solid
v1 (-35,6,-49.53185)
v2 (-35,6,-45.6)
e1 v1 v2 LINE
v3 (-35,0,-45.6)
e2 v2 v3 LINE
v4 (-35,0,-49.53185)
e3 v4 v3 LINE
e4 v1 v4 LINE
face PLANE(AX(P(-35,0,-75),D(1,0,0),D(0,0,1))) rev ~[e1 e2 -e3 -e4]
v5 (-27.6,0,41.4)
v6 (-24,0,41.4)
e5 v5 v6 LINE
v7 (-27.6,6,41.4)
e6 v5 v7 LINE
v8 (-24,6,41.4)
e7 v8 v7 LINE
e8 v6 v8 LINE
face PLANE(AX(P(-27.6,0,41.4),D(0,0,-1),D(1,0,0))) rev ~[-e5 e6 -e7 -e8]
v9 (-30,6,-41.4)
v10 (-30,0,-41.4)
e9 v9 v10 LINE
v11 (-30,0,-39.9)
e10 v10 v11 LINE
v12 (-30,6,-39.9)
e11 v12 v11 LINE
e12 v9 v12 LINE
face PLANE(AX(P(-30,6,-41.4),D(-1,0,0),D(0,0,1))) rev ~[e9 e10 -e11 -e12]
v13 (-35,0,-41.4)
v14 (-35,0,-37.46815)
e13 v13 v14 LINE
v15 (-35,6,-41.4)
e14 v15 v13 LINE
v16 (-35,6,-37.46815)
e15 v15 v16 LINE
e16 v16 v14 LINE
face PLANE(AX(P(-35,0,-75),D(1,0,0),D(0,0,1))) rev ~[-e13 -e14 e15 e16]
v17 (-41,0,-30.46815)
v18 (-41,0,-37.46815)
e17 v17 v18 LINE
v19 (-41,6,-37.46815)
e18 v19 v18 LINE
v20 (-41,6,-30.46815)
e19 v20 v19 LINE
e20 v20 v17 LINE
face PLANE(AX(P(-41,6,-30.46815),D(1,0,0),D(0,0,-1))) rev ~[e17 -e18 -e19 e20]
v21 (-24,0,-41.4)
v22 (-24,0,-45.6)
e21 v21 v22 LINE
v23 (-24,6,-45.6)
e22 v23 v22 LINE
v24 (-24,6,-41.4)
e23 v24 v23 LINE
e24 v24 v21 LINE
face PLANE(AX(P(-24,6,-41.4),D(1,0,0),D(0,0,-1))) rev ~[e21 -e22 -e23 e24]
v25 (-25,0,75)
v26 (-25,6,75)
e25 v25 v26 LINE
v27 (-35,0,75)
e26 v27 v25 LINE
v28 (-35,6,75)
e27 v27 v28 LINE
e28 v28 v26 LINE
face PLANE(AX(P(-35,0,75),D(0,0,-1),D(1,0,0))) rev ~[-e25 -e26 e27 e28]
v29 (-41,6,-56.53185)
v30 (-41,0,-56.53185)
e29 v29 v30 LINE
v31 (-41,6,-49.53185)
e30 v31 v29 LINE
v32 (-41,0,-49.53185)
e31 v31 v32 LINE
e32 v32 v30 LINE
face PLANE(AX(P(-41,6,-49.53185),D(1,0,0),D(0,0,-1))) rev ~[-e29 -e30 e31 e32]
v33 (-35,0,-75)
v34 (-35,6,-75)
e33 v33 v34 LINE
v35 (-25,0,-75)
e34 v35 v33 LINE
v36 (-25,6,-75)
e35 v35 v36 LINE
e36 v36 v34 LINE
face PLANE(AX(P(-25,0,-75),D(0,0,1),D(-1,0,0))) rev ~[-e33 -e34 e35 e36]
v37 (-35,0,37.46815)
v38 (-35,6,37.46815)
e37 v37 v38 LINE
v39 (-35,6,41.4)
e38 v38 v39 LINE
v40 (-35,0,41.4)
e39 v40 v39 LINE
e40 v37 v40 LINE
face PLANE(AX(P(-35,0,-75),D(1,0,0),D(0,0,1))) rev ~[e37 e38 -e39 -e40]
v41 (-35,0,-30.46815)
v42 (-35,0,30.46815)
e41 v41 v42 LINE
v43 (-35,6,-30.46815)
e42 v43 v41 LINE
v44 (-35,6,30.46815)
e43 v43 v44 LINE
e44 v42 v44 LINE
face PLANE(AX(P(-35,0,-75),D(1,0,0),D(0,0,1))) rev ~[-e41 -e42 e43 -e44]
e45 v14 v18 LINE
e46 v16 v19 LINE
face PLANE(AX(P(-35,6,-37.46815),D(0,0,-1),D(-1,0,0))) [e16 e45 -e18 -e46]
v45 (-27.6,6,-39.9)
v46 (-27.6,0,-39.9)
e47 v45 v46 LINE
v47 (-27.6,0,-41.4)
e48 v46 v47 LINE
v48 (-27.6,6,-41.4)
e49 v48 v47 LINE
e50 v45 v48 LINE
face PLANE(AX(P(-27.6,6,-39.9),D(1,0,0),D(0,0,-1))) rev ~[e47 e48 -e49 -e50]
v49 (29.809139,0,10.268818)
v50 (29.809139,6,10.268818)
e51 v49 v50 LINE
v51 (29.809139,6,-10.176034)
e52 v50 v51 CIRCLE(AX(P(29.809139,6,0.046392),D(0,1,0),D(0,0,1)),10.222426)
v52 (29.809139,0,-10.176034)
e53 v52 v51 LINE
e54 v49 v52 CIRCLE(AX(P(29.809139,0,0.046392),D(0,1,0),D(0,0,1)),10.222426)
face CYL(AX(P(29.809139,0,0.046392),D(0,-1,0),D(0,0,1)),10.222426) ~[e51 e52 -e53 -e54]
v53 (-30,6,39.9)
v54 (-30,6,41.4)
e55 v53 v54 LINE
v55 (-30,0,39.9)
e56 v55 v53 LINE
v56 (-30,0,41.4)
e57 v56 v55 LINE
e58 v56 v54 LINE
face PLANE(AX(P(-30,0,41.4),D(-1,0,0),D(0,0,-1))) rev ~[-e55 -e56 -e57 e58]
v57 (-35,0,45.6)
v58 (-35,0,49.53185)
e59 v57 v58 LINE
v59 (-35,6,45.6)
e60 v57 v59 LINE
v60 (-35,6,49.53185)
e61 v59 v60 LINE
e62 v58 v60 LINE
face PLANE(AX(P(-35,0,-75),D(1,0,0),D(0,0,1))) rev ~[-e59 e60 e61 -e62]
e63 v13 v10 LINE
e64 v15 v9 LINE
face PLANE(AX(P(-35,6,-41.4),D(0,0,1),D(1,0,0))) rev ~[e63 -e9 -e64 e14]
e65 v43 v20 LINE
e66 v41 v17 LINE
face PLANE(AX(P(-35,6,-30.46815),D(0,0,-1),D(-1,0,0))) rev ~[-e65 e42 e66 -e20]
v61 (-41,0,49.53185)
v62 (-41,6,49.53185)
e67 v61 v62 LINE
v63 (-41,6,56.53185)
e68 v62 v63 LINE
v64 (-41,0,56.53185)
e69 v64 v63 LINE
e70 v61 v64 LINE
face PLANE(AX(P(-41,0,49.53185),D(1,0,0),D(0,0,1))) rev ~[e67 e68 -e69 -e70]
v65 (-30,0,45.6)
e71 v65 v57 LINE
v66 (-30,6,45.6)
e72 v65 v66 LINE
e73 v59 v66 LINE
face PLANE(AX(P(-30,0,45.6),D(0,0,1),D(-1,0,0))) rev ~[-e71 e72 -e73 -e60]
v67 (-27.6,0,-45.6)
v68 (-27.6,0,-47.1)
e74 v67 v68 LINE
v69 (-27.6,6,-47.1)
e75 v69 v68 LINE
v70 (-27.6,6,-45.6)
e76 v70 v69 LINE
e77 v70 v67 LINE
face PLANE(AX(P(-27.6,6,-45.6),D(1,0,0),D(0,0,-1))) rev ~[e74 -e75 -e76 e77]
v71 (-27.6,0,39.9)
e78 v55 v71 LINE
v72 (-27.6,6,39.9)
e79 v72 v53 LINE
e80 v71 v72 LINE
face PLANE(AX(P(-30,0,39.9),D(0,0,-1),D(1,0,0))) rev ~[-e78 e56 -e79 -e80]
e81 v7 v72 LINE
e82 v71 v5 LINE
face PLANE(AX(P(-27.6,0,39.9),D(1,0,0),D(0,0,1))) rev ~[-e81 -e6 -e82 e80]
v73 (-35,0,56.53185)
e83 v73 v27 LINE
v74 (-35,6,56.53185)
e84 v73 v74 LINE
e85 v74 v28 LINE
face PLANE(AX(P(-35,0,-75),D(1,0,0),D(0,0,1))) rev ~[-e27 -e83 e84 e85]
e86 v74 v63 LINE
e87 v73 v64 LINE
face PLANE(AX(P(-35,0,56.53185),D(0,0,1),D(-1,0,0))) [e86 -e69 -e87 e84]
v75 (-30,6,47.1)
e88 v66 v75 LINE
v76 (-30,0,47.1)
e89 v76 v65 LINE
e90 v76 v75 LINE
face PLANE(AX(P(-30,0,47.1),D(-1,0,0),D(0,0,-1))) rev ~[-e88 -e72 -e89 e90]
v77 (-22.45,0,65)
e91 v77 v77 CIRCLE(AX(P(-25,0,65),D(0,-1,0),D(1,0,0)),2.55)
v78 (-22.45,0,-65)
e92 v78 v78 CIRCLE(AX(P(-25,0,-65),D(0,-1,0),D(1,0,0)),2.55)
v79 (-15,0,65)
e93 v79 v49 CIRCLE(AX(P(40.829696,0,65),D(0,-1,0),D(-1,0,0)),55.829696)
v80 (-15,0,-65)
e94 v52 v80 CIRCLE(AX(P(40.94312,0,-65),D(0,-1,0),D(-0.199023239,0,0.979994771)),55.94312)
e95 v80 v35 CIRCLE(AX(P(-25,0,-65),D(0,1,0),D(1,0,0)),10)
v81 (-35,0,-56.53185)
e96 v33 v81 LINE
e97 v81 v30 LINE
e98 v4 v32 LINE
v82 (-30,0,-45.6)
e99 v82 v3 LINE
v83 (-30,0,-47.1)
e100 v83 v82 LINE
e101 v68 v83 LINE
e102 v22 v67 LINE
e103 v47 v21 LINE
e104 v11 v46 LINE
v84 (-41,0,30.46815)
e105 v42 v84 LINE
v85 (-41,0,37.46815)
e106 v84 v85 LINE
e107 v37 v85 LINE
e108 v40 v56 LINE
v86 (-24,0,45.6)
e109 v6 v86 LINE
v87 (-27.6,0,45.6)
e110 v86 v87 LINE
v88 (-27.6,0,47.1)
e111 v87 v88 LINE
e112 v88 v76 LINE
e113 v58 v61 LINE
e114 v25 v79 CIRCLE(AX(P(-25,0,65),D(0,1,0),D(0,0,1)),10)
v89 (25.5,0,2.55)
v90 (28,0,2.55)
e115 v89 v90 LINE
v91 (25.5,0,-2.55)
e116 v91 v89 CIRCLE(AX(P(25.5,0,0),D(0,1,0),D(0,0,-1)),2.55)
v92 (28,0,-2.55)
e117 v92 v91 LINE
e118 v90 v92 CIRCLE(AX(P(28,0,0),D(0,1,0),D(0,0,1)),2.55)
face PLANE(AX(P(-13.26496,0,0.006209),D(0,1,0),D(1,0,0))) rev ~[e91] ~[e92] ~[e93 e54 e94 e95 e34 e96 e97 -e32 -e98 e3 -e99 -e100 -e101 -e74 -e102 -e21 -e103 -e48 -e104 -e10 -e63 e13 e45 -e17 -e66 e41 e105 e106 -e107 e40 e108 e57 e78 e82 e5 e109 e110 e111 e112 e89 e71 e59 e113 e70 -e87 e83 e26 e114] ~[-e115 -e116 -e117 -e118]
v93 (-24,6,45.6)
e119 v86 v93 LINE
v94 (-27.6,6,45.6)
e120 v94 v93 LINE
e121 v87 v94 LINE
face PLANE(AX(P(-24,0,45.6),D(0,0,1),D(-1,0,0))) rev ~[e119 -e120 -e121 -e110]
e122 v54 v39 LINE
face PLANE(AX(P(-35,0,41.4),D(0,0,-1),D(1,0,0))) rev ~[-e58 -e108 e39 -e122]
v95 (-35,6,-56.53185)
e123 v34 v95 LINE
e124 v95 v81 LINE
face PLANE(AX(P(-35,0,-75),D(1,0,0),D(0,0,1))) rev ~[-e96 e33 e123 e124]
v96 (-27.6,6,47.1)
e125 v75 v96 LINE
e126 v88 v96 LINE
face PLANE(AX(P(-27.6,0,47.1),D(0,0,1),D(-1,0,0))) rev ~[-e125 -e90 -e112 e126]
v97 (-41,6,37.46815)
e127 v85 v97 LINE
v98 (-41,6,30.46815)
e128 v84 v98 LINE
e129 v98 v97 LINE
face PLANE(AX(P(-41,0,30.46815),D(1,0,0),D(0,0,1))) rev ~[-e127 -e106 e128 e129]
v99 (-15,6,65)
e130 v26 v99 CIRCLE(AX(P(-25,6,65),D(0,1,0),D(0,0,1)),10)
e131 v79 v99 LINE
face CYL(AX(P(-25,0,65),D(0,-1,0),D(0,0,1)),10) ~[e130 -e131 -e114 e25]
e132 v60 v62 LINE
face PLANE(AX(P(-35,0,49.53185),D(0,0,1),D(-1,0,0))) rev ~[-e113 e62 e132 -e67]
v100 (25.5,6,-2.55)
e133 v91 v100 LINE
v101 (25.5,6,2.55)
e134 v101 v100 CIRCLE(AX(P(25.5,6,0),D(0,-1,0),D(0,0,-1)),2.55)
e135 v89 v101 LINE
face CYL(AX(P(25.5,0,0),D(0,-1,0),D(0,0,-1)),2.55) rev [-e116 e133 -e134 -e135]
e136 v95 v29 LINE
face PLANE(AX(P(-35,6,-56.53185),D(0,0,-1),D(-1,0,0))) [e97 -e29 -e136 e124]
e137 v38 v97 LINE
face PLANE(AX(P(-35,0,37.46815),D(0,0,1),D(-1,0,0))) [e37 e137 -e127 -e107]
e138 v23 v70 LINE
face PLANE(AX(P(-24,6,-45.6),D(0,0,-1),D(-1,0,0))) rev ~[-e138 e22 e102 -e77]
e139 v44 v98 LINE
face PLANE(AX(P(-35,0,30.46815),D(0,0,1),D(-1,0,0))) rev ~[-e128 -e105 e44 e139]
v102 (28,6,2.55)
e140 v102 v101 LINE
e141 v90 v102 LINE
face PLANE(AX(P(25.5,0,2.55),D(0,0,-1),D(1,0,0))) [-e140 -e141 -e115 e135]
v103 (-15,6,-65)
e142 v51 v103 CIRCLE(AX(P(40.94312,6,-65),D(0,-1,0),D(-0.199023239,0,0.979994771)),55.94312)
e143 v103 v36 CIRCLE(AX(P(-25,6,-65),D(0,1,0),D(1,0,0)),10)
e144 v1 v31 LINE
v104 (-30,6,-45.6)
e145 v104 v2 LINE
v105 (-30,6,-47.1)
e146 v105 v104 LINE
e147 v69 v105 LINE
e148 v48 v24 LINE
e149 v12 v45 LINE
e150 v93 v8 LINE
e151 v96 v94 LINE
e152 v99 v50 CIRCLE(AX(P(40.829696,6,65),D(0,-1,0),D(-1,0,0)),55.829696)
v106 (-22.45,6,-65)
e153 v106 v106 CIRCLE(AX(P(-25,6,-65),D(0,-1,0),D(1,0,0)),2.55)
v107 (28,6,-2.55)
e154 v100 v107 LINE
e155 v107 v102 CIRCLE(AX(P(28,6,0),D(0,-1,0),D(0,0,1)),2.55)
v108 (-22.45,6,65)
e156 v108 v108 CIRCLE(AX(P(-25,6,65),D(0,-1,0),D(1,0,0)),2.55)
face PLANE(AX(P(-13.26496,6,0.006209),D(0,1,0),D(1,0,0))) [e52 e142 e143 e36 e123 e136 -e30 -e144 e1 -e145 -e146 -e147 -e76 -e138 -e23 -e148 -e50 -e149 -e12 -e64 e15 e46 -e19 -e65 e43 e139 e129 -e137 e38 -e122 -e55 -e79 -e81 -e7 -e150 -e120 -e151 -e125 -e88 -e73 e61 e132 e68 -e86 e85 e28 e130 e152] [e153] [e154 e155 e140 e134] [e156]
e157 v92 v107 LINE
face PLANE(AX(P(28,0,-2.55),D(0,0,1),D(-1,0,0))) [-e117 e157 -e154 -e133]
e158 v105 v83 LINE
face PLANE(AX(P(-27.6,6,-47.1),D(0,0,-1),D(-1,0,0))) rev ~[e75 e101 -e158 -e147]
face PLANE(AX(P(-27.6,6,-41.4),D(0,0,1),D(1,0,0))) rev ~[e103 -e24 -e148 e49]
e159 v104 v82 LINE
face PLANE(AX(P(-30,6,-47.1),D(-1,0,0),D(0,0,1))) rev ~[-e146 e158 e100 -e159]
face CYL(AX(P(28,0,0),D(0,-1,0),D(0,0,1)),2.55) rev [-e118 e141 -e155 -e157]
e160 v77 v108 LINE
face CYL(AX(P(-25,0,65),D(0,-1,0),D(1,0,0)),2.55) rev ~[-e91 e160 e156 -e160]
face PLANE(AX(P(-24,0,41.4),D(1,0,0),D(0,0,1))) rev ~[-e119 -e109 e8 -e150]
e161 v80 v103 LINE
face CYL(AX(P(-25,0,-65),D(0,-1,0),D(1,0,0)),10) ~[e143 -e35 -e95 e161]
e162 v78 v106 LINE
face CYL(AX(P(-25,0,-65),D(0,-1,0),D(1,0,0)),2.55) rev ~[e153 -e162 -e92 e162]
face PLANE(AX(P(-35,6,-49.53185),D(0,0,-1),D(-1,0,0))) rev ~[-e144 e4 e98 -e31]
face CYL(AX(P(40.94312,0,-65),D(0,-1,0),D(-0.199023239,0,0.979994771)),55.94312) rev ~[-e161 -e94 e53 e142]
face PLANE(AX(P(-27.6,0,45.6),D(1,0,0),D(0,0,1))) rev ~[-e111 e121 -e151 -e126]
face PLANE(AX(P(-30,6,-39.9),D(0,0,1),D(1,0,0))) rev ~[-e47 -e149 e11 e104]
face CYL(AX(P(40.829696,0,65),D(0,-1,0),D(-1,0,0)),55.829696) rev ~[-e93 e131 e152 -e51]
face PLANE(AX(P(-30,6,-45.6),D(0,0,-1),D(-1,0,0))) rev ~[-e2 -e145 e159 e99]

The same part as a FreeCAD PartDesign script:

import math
import FreeCAD as App
import Part
import Sketcher
from FreeCAD import Vector

doc = App.newDocument("Part")
body = doc.addObject("PartDesign::Body", "Body")

# Sketch on XZ plane
sketch1 = body.newObject("Sketcher::SketchObject", "Sketch")
sketch1.AttachmentSupport = (doc.getObject("XZ_Plane"), [""])
sketch1.MapMode = "FlatFace"
sketch1.addGeometry(Part.LineSegment(Vector(-35, 75, 0), Vector(-25, 75, 0)), False)
sketch1.addGeometry(Part.ArcOfCircle(Part.Circle(Vector(-25, 65, 0), Vector(0, 0, 1), 10), math.radians(0), math.radians(90)), False)
sketch1.addGeometry(Part.ArcOfCircle(Part.Circle(Vector(40.829696, 65, 0), Vector(0, 0, 1), 55.829696), math.radians(-180), math.radians(-101.384723)), False)
sketch1.addGeometry(Part.ArcOfCircle(Part.Circle(Vector(29.809139, 0.046392, 0), Vector(0, 0, 1), 10.222426), math.radians(-90), math.radians(90)), False)
sketch1.addGeometry(Part.ArcOfCircle(Part.Circle(Vector(40.94312, -65, 0), Vector(0, 0, 1), 55.94312), math.radians(101.479847), math.radians(180)), False)
sketch1.addGeometry(Part.ArcOfCircle(Part.Circle(Vector(-25, -65, 0), Vector(0, 0, 1), 10), math.radians(-90), math.radians(0)), False)
sketch1.addGeometry(Part.LineSegment(Vector(-25, -75, 0), Vector(-35, -75, 0)), False)
sketch1.addGeometry(Part.LineSegment(Vector(-35, -75, 0), Vector(-35, 75, 0)), False)
sketch1.addConstraint(Sketcher.Constraint("Tangent", 0, 2, 1, 2))
sketch1.addConstraint(Sketcher.Constraint("Tangent", 1, 1, 2, 1))
sketch1.addConstraint(Sketcher.Constraint("Coincident", 2, 2, 3, 2))
sketch1.addConstraint(Sketcher.Constraint("Coincident", 3, 1, 4, 1))
sketch1.addConstraint(Sketcher.Constraint("Tangent", 4, 2, 5, 2))
sketch1.addConstraint(Sketcher.Constraint("Tangent", 5, 1, 6, 1))
sketch1.addConstraint(Sketcher.Constraint("Coincident", 6, 2, 7, 1))
sketch1.addConstraint(Sketcher.Constraint("Coincident", 7, 2, 0, 1))
sketch1.addConstraint(Sketcher.Constraint("Horizontal", 0))
sketch1.addConstraint(Sketcher.Constraint("Horizontal", 6))
sketch1.addConstraint(Sketcher.Constraint("Vertical", 7))
sketch1.addConstraint(Sketcher.Constraint("Equal", 1, 5))
sketch1.addConstraint(Sketcher.Constraint("Symmetric", 1, 3, 5, 3, -1))
sketch1.addConstraint(Sketcher.Constraint("Horizontal", 1, 3, 2, 3))
sketch1.addConstraint(Sketcher.Constraint("Horizontal", 4, 3, 5, 3))
sketch1.addConstraint(Sketcher.Constraint("Vertical", 3, 3, 2, 2))
sketch1.addConstraint(Sketcher.Constraint("Vertical", 2, 2, 3, 1))
sketch1.addConstraint(Sketcher.Constraint("Radius", 1, 10.0))
sketch1.addConstraint(Sketcher.Constraint("DistanceX", 0, 1, 0, 2, 10.0))
sketch1.addConstraint(Sketcher.Constraint("DistanceY", 7, 1, 7, 2, 150.0))
sketch1.addConstraint(Sketcher.Constraint("DistanceX", 1, 3, -1, 1, 25.0))
sketch1.addConstraint(Sketcher.Constraint("Radius", 4, 55.94312))
sketch1.addConstraint(Sketcher.Constraint("Radius", 2, 55.829696))
sketch1.addConstraint(Sketcher.Constraint("Radius", 3, 10.222426))
pad1 = body.newObject("PartDesign::Pad", "Pad")
pad1.Profile = sketch1
pad1.Length = 6
pad1.Reversed = True

# Sketch on XZ plane
sketch2 = body.newObject("Sketcher::SketchObject", "Sketch001")
sketch2.AttachmentSupport = (doc.getObject("XZ_Plane"), [""])
sketch2.MapMode = "FlatFace"
sketch2.addGeometry(Part.Circle(Vector(-25, -65, 0), Vector(0, 0, 1), 2.55), False)
sketch2.addGeometry(Part.Circle(Vector(-25, 65, 0), Vector(0, 0, 1), 2.55), False)
sketch2.addGeometry(Part.LineSegment(Vector(25.5, -2.55, 0), Vector(28, -2.55, 0)), False)
sketch2.addGeometry(Part.ArcOfCircle(Part.Circle(Vector(28, 0, 0), Vector(0, 0, 1), 2.55), math.radians(-90), math.radians(90)), False)
sketch2.addGeometry(Part.LineSegment(Vector(28, 2.55, 0), Vector(25.5, 2.55, 0)), False)
sketch2.addGeometry(Part.ArcOfCircle(Part.Circle(Vector(25.5, 0, 0), Vector(0, 0, 1), 2.55), math.radians(90), math.radians(270)), False)
sketch2.addConstraint(Sketcher.Constraint("Tangent", 2, 2, 3, 1))
sketch2.addConstraint(Sketcher.Constraint("Tangent", 3, 2, 4, 1))
sketch2.addConstraint(Sketcher.Constraint("Tangent", 4, 2, 5, 1))
sketch2.addConstraint(Sketcher.Constraint("Tangent", 5, 2, 2, 1))
sketch2.addConstraint(Sketcher.Constraint("Horizontal", 2))
sketch2.addConstraint(Sketcher.Constraint("Horizontal", 4))
sketch2.addConstraint(Sketcher.Constraint("Equal", 0, 1))
sketch2.addConstraint(Sketcher.Constraint("Equal", 1, 3))
sketch2.addConstraint(Sketcher.Constraint("Symmetric", 0, 3, 1, 3, -1))
sketch2.addConstraint(Sketcher.Constraint("PointOnObject", 3, 3, -1))
sketch2.addConstraint(Sketcher.Constraint("Diameter", 0, 5.1))
sketch2.addConstraint(Sketcher.Constraint("DistanceX", 2, 1, 2, 2, 2.5))
sketch2.addConstraint(Sketcher.Constraint("DistanceX", 0, 3, -1, 1, 25.0))
sketch2.addConstraint(Sketcher.Constraint("DistanceY", 0, 3, -1, 1, 65.0))
sketch2.addConstraint(Sketcher.Constraint("DistanceX", -1, 1, 3, 3, 28.0))
pocket1 = body.newObject("PartDesign::Pocket", "Pocket")
pocket1.Profile = sketch2
pocket1.Type = "ThroughAll"

# Sketch on XZ plane
sketch3 = body.newObject("Sketcher::SketchObject", "Sketch002")
sketch3.AttachmentSupport = (doc.getObject("XZ_Plane"), [""])
sketch3.MapMode = "FlatFace"
sketch3.AttachmentOffset = App.Placement(Vector(0, 0, -6), App.Rotation())
sketch3.addGeometry(Part.LineSegment(Vector(-41, -30.46815, 0), Vector(-35, -30.46815, 0)), False)
sketch3.addGeometry(Part.LineSegment(Vector(-35, -30.46815, 0), Vector(-35, -37.46815, 0)), False)
sketch3.addGeometry(Part.LineSegment(Vector(-35, -37.46815, 0), Vector(-41, -37.46815, 0)), False)
sketch3.addGeometry(Part.LineSegment(Vector(-41, -37.46815, 0), Vector(-41, -30.46815, 0)), False)
sketch3.addGeometry(Part.LineSegment(Vector(-41, -49.53185, 0), Vector(-35, -49.53185, 0)), False)
sketch3.addGeometry(Part.LineSegment(Vector(-35, -49.53185, 0), Vector(-35, -56.53185, 0)), False)
sketch3.addGeometry(Part.LineSegment(Vector(-35, -56.53185, 0), Vector(-41, -56.53185, 0)), False)
sketch3.addGeometry(Part.LineSegment(Vector(-41, -56.53185, 0), Vector(-41, -49.53185, 0)), False)
sketch3.addConstraint(Sketcher.Constraint("Coincident", 0, 2, 1, 1))
sketch3.addConstraint(Sketcher.Constraint("Coincident", 1, 2, 2, 1))
sketch3.addConstraint(Sketcher.Constraint("Coincident", 2, 2, 3, 1))
sketch3.addConstraint(Sketcher.Constraint("Coincident", 3, 2, 0, 1))
sketch3.addConstraint(Sketcher.Constraint("Coincident", 4, 2, 5, 1))
sketch3.addConstraint(Sketcher.Constraint("Coincident", 5, 2, 6, 1))
sketch3.addConstraint(Sketcher.Constraint("Coincident", 6, 2, 7, 1))
sketch3.addConstraint(Sketcher.Constraint("Coincident", 7, 2, 4, 1))
sketch3.addConstraint(Sketcher.Constraint("Horizontal", 0))
sketch3.addConstraint(Sketcher.Constraint("Vertical", 1))
sketch3.addConstraint(Sketcher.Constraint("Horizontal", 2))
sketch3.addConstraint(Sketcher.Constraint("Vertical", 3))
sketch3.addConstraint(Sketcher.Constraint("Horizontal", 4))
sketch3.addConstraint(Sketcher.Constraint("Vertical", 5))
sketch3.addConstraint(Sketcher.Constraint("Horizontal", 6))
sketch3.addConstraint(Sketcher.Constraint("Vertical", 7))
sketch3.addConstraint(Sketcher.Constraint("Vertical", 1, 2, 4, 2))
sketch3.addConstraint(Sketcher.Constraint("Vertical", 3, 2, 6, 2))
sketch3.addConstraint(Sketcher.Constraint("Equal", 3, 5))
sketch3.addConstraint(Sketcher.Constraint("DistanceX", 0, 1, 0, 2, 6.0))
sketch3.addConstraint(Sketcher.Constraint("DistanceY", 1, 2, 1, 1, 7.0))
sketch3.addConstraint(Sketcher.Constraint("DistanceX", 0, 2, -1, 1, 35.0))
sketch3.addConstraint(Sketcher.Constraint("DistanceY", 4, 2, 1, 2, 12.0637))
sketch3.addConstraint(Sketcher.Constraint("DistanceY", 0, 2, -1, 1, 30.46815))
pad2 = body.newObject("PartDesign::Pad", "Pad001")
pad2.Profile = sketch3
pad2.Length = 6

# Sketch on XZ plane
sketch4 = body.newObject("Sketcher::SketchObject", "Sketch003")
sketch4.AttachmentSupport = (doc.getObject("XZ_Plane"), [""])
sketch4.MapMode = "FlatFace"
sketch4.AttachmentOffset = App.Placement(Vector(0, 0, -6), App.Rotation())
sketch4.addGeometry(Part.LineSegment(Vector(-30, -41.4, 0), Vector(-30, -39.9, 0)), False)
sketch4.addGeometry(Part.LineSegment(Vector(-30, -39.9, 0), Vector(-27.6, -39.9, 0)), False)
sketch4.addGeometry(Part.LineSegment(Vector(-27.6, -39.9, 0), Vector(-27.6, -41.4, 0)), False)
sketch4.addGeometry(Part.LineSegment(Vector(-27.6, -41.4, 0), Vector(-24, -41.4, 0)), False)
sketch4.addGeometry(Part.LineSegment(Vector(-24, -41.4, 0), Vector(-24, -45.6, 0)), False)
sketch4.addGeometry(Part.LineSegment(Vector(-24, -45.6, 0), Vector(-27.6, -45.6, 0)), False)
sketch4.addGeometry(Part.LineSegment(Vector(-27.6, -45.6, 0), Vector(-27.6, -47.1, 0)), False)
sketch4.addGeometry(Part.LineSegment(Vector(-27.6, -47.1, 0), Vector(-30, -47.1, 0)), False)
sketch4.addGeometry(Part.LineSegment(Vector(-30, -47.1, 0), Vector(-30, -45.6, 0)), False)
sketch4.addGeometry(Part.LineSegment(Vector(-30, -45.6, 0), Vector(-35, -45.6, 0)), False)
sketch4.addGeometry(Part.LineSegment(Vector(-35, -45.6, 0), Vector(-35, -41.4, 0)), False)
sketch4.addGeometry(Part.LineSegment(Vector(-35, -41.4, 0), Vector(-30, -41.4, 0)), False)
sketch4.addConstraint(Sketcher.Constraint("Coincident", 0, 2, 1, 1))
sketch4.addConstraint(Sketcher.Constraint("Coincident", 1, 2, 2, 1))
sketch4.addConstraint(Sketcher.Constraint("Coincident", 2, 2, 3, 1))
sketch4.addConstraint(Sketcher.Constraint("Coincident", 3, 2, 4, 1))
sketch4.addConstraint(Sketcher.Constraint("Coincident", 4, 2, 5, 1))
sketch4.addConstraint(Sketcher.Constraint("Coincident", 5, 2, 6, 1))
sketch4.addConstraint(Sketcher.Constraint("Coincident", 6, 2, 7, 1))
sketch4.addConstraint(Sketcher.Constraint("Coincident", 7, 2, 8, 1))
sketch4.addConstraint(Sketcher.Constraint("Coincident", 8, 2, 9, 1))
sketch4.addConstraint(Sketcher.Constraint("Coincident", 9, 2, 10, 1))
sketch4.addConstraint(Sketcher.Constraint("Coincident", 10, 2, 11, 1))
sketch4.addConstraint(Sketcher.Constraint("Coincident", 11, 2, 0, 1))
sketch4.addConstraint(Sketcher.Constraint("Vertical", 0))
sketch4.addConstraint(Sketcher.Constraint("Horizontal", 1))
sketch4.addConstraint(Sketcher.Constraint("Vertical", 2))
sketch4.addConstraint(Sketcher.Constraint("Horizontal", 3))
sketch4.addConstraint(Sketcher.Constraint("Vertical", 4))
sketch4.addConstraint(Sketcher.Constraint("Horizontal", 5))
sketch4.addConstraint(Sketcher.Constraint("Vertical", 6))
sketch4.addConstraint(Sketcher.Constraint("Horizontal", 7))
sketch4.addConstraint(Sketcher.Constraint("Vertical", 8))
sketch4.addConstraint(Sketcher.Constraint("Horizontal", 9))
sketch4.addConstraint(Sketcher.Constraint("Vertical", 10))
sketch4.addConstraint(Sketcher.Constraint("Horizontal", 11))
sketch4.addConstraint(Sketcher.Constraint("Horizontal", 5, 2, 8, 2))
sketch4.addConstraint(Sketcher.Constraint("Horizontal", 3, 2, 10, 2))
sketch4.addConstraint(Sketcher.Constraint("Vertical", 2, 2, 5, 2))
sketch4.addConstraint(Sketcher.Constraint("Vertical", 0, 2, 7, 2))
sketch4.addConstraint(Sketcher.Constraint("Equal", 2, 6))
sketch4.addConstraint(Sketcher.Constraint("DistanceX", 9, 2, 9, 1, 5.0))
sketch4.addConstraint(Sketcher.Constraint("DistanceX", 1, 1, 1, 2, 2.4))
sketch4.addConstraint(Sketcher.Constraint("DistanceX", 3, 1, 3, 2, 3.6))
sketch4.addConstraint(Sketcher.Constraint("DistanceY", 0, 1, 0, 2, 1.5))
sketch4.addConstraint(Sketcher.Constraint("DistanceY", 4, 2, 4, 1, 4.2))
sketch4.addConstraint(Sketcher.Constraint("DistanceX", 0, 2, -1, 1, 30.0))
sketch4.addConstraint(Sketcher.Constraint("DistanceY", 0, 2, -1, 1, 39.9))
pocket2 = body.newObject("PartDesign::Pocket", "Pocket001")
pocket2.Profile = sketch4
pocket2.Type = "ThroughAll"
pocket2.Reversed = True

# Sketch on XZ plane
sketch5 = body.newObject("Sketcher::SketchObject", "Sketch004")
sketch5.AttachmentSupport = (doc.getObject("XZ_Plane"), [""])
sketch5.MapMode = "FlatFace"
sketch5.addGeometry(Part.LineSegment(Vector(-41, -56.53185, 0), Vector(-35, -56.53185, 0)), False)
sketch5.addGeometry(Part.LineSegment(Vector(-35, -56.53185, 0), Vector(-35, -49.53185, 0)), False)
sketch5.addGeometry(Part.LineSegment(Vector(-35, -49.53185, 0), Vector(-41, -49.53185, 0)), False)
sketch5.addGeometry(Part.LineSegment(Vector(-41, -49.53185, 0), Vector(-41, -56.53185, 0)), False)
sketch5.addGeometry(Part.LineSegment(Vector(-41, -37.46815, 0), Vector(-35, -37.46815, 0)), False)
sketch5.addGeometry(Part.LineSegment(Vector(-35, -37.46815, 0), Vector(-35, -30.46815, 0)), False)
sketch5.addGeometry(Part.LineSegment(Vector(-35, -30.46815, 0), Vector(-41, -30.46815, 0)), False)
sketch5.addGeometry(Part.LineSegment(Vector(-41, -30.46815, 0), Vector(-41, -37.46815, 0)), False)
sketch5.addConstraint(Sketcher.Constraint("Coincident", 0, 2, 1, 1))
sketch5.addConstraint(Sketcher.Constraint("Coincident", 1, 2, 2, 1))
sketch5.addConstraint(Sketcher.Constraint("Coincident", 2, 2, 3, 1))
sketch5.addConstraint(Sketcher.Constraint("Coincident", 3, 2, 0, 1))
sketch5.addConstraint(Sketcher.Constraint("Coincident", 4, 2, 5, 1))
sketch5.addConstraint(Sketcher.Constraint("Coincident", 5, 2, 6, 1))
sketch5.addConstraint(Sketcher.Constraint("Coincident", 6, 2, 7, 1))
sketch5.addConstraint(Sketcher.Constraint("Coincident", 7, 2, 4, 1))
sketch5.addConstraint(Sketcher.Constraint("Horizontal", 0))
sketch5.addConstraint(Sketcher.Constraint("Vertical", 1))
sketch5.addConstraint(Sketcher.Constraint("Horizontal", 2))
sketch5.addConstraint(Sketcher.Constraint("Vertical", 3))
sketch5.addConstraint(Sketcher.Constraint("Horizontal", 4))
sketch5.addConstraint(Sketcher.Constraint("Vertical", 5))
sketch5.addConstraint(Sketcher.Constraint("Horizontal", 6))
sketch5.addConstraint(Sketcher.Constraint("Vertical", 7))
sketch5.addConstraint(Sketcher.Constraint("Vertical", 1, 2, 4, 2))
sketch5.addConstraint(Sketcher.Constraint("Vertical", 3, 2, 6, 2))
sketch5.addConstraint(Sketcher.Constraint("Equal", 3, 5))
sketch5.addConstraint(Sketcher.Constraint("DistanceX", 0, 1, 0, 2, 6.0))
sketch5.addConstraint(Sketcher.Constraint("DistanceY", 1, 1, 1, 2, 7.0))
sketch5.addConstraint(Sketcher.Constraint("DistanceX", 0, 2, -1, 1, 35.0))
sketch5.addConstraint(Sketcher.Constraint("DistanceY", 1, 2, 4, 2, 12.0637))
sketch5.addConstraint(Sketcher.Constraint("DistanceY", 0, 2, -1, 1, 56.53185))
pad3 = body.newObject("PartDesign::Pad", "Pad002")
pad3.Profile = sketch5
pad3.Length = 6
pad3.Reversed = True

# Sketch on XZ plane
sketch6 = body.newObject("Sketcher::SketchObject", "Sketch005")
sketch6.AttachmentSupport = (doc.getObject("XZ_Plane"), [""])
sketch6.MapMode = "FlatFace"
sketch6.addGeometry(Part.LineSegment(Vector(-41, 30.46815, 0), Vector(-35, 30.46815, 0)), False)
sketch6.addGeometry(Part.LineSegment(Vector(-35, 30.46815, 0), Vector(-35, 37.46815, 0)), False)
sketch6.addGeometry(Part.LineSegment(Vector(-35, 37.46815, 0), Vector(-41, 37.46815, 0)), False)
sketch6.addGeometry(Part.LineSegment(Vector(-41, 37.46815, 0), Vector(-41, 30.46815, 0)), False)
sketch6.addGeometry(Part.LineSegment(Vector(-41, 49.53185, 0), Vector(-35, 49.53185, 0)), False)
sketch6.addGeometry(Part.LineSegment(Vector(-35, 49.53185, 0), Vector(-35, 56.53185, 0)), False)
sketch6.addGeometry(Part.LineSegment(Vector(-35, 56.53185, 0), Vector(-41, 56.53185, 0)), False)
sketch6.addGeometry(Part.LineSegment(Vector(-41, 56.53185, 0), Vector(-41, 49.53185, 0)), False)
sketch6.addConstraint(Sketcher.Constraint("Coincident", 0, 2, 1, 1))
sketch6.addConstraint(Sketcher.Constraint("Coincident", 1, 2, 2, 1))
sketch6.addConstraint(Sketcher.Constraint("Coincident", 2, 2, 3, 1))
sketch6.addConstraint(Sketcher.Constraint("Coincident", 3, 2, 0, 1))
sketch6.addConstraint(Sketcher.Constraint("Coincident", 4, 2, 5, 1))
sketch6.addConstraint(Sketcher.Constraint("Coincident", 5, 2, 6, 1))
sketch6.addConstraint(Sketcher.Constraint("Coincident", 6, 2, 7, 1))
sketch6.addConstraint(Sketcher.Constraint("Coincident", 7, 2, 4, 1))
sketch6.addConstraint(Sketcher.Constraint("Horizontal", 0))
sketch6.addConstraint(Sketcher.Constraint("Vertical", 1))
sketch6.addConstraint(Sketcher.Constraint("Horizontal", 2))
sketch6.addConstraint(Sketcher.Constraint("Vertical", 3))
sketch6.addConstraint(Sketcher.Constraint("Horizontal", 4))
sketch6.addConstraint(Sketcher.Constraint("Vertical", 5))
sketch6.addConstraint(Sketcher.Constraint("Horizontal", 6))
sketch6.addConstraint(Sketcher.Constraint("Vertical", 7))
sketch6.addConstraint(Sketcher.Constraint("Vertical", 1, 2, 4, 2))
sketch6.addConstraint(Sketcher.Constraint("Vertical", 3, 2, 6, 2))
sketch6.addConstraint(Sketcher.Constraint("Equal", 3, 5))
sketch6.addConstraint(Sketcher.Constraint("DistanceX", 0, 1, 0, 2, 6.0))
sketch6.addConstraint(Sketcher.Constraint("DistanceY", 1, 1, 1, 2, 7.0))
sketch6.addConstraint(Sketcher.Constraint("DistanceX", 0, 2, -1, 1, 35.0))
sketch6.addConstraint(Sketcher.Constraint("DistanceY", 1, 2, 4, 2, 12.0637))
sketch6.addConstraint(Sketcher.Constraint("DistanceY", -1, 1, 0, 2, 30.46815))
pad4 = body.newObject("PartDesign::Pad", "Pad003")
pad4.Profile = sketch6
pad4.Length = 6
pad4.Reversed = True

# Sketch on XZ plane
sketch7 = body.newObject("Sketcher::SketchObject", "Sketch006")
sketch7.AttachmentSupport = (doc.getObject("XZ_Plane"), [""])
sketch7.MapMode = "FlatFace"
sketch7.addGeometry(Part.LineSegment(Vector(-30, 41.4, 0), Vector(-30, 39.9, 0)), False)
sketch7.addGeometry(Part.LineSegment(Vector(-30, 39.9, 0), Vector(-27.6, 39.9, 0)), False)
sketch7.addGeometry(Part.LineSegment(Vector(-27.6, 39.9, 0), Vector(-27.6, 41.4, 0)), False)
sketch7.addGeometry(Part.LineSegment(Vector(-27.6, 41.4, 0), Vector(-24, 41.4, 0)), False)
sketch7.addGeometry(Part.LineSegment(Vector(-24, 41.4, 0), Vector(-24, 45.6, 0)), False)
sketch7.addGeometry(Part.LineSegment(Vector(-24, 45.6, 0), Vector(-27.6, 45.6, 0)), False)
sketch7.addGeometry(Part.LineSegment(Vector(-27.6, 45.6, 0), Vector(-27.6, 47.1, 0)), False)
sketch7.addGeometry(Part.LineSegment(Vector(-27.6, 47.1, 0), Vector(-30, 47.1, 0)), False)
sketch7.addGeometry(Part.LineSegment(Vector(-30, 47.1, 0), Vector(-30, 45.6, 0)), False)
sketch7.addGeometry(Part.LineSegment(Vector(-30, 45.6, 0), Vector(-35, 45.6, 0)), False)
sketch7.addGeometry(Part.LineSegment(Vector(-35, 45.6, 0), Vector(-35, 41.4, 0)), False)
sketch7.addGeometry(Part.LineSegment(Vector(-35, 41.4, 0), Vector(-30, 41.4, 0)), False)
sketch7.addConstraint(Sketcher.Constraint("Coincident", 0, 2, 1, 1))
sketch7.addConstraint(Sketcher.Constraint("Coincident", 1, 2, 2, 1))
sketch7.addConstraint(Sketcher.Constraint("Coincident", 2, 2, 3, 1))
sketch7.addConstraint(Sketcher.Constraint("Coincident", 3, 2, 4, 1))
sketch7.addConstraint(Sketcher.Constraint("Coincident", 4, 2, 5, 1))
sketch7.addConstraint(Sketcher.Constraint("Coincident", 5, 2, 6, 1))
sketch7.addConstraint(Sketcher.Constraint("Coincident", 6, 2, 7, 1))
sketch7.addConstraint(Sketcher.Constraint("Coincident", 7, 2, 8, 1))
sketch7.addConstraint(Sketcher.Constraint("Coincident", 8, 2, 9, 1))
sketch7.addConstraint(Sketcher.Constraint("Coincident", 9, 2, 10, 1))
sketch7.addConstraint(Sketcher.Constraint("Coincident", 10, 2, 11, 1))
sketch7.addConstraint(Sketcher.Constraint("Coincident", 11, 2, 0, 1))
sketch7.addConstraint(Sketcher.Constraint("Vertical", 0))
sketch7.addConstraint(Sketcher.Constraint("Horizontal", 1))
sketch7.addConstraint(Sketcher.Constraint("Vertical", 2))
sketch7.addConstraint(Sketcher.Constraint("Horizontal", 3))
sketch7.addConstraint(Sketcher.Constraint("Vertical", 4))
sketch7.addConstraint(Sketcher.Constraint("Horizontal", 5))
sketch7.addConstraint(Sketcher.Constraint("Vertical", 6))
sketch7.addConstraint(Sketcher.Constraint("Horizontal", 7))
sketch7.addConstraint(Sketcher.Constraint("Vertical", 8))
sketch7.addConstraint(Sketcher.Constraint("Horizontal", 9))
sketch7.addConstraint(Sketcher.Constraint("Vertical", 10))
sketch7.addConstraint(Sketcher.Constraint("Horizontal", 11))
sketch7.addConstraint(Sketcher.Constraint("Horizontal", 5, 2, 8, 2))
sketch7.addConstraint(Sketcher.Constraint("Horizontal", 3, 2, 10, 2))
sketch7.addConstraint(Sketcher.Constraint("Vertical", 2, 2, 5, 2))
sketch7.addConstraint(Sketcher.Constraint("Vertical", 0, 2, 7, 2))
sketch7.addConstraint(Sketcher.Constraint("Equal", 2, 6))
sketch7.addConstraint(Sketcher.Constraint("DistanceX", 9, 2, 9, 1, 5.0))
sketch7.addConstraint(Sketcher.Constraint("DistanceX", 1, 1, 1, 2, 2.4))
sketch7.addConstraint(Sketcher.Constraint("DistanceX", 3, 1, 3, 2, 3.6))
sketch7.addConstraint(Sketcher.Constraint("DistanceY", 0, 2, 0, 1, 1.5))
sketch7.addConstraint(Sketcher.Constraint("DistanceY", 4, 1, 4, 2, 4.2))
sketch7.addConstraint(Sketcher.Constraint("DistanceX", 0, 2, -1, 1, 30.0))
sketch7.addConstraint(Sketcher.Constraint("DistanceY", -1, 1, 0, 2, 39.9))
pocket3 = body.newObject("PartDesign::Pocket", "Pocket002")
pocket3.Profile = sketch7
pocket3.Type = "ThroughAll"

# Sketch on XZ plane
sketch8 = body.newObject("Sketcher::SketchObject", "Sketch007")
sketch8.AttachmentSupport = (doc.getObject("XZ_Plane"), [""])
sketch8.MapMode = "FlatFace"
sketch8.AttachmentOffset = App.Placement(Vector(0, 0, -6), App.Rotation())
sketch8.addGeometry(Part.LineSegment(Vector(-41, 56.53185, 0), Vector(-35, 56.53185, 0)), False)
sketch8.addGeometry(Part.LineSegment(Vector(-35, 56.53185, 0), Vector(-35, 49.53185, 0)), False)
sketch8.addGeometry(Part.LineSegment(Vector(-35, 49.53185, 0), Vector(-41, 49.53185, 0)), False)
sketch8.addGeometry(Part.LineSegment(Vector(-41, 49.53185, 0), Vector(-41, 56.53185, 0)), False)
sketch8.addGeometry(Part.LineSegment(Vector(-41, 37.46815, 0), Vector(-35, 37.46815, 0)), False)
sketch8.addGeometry(Part.LineSegment(Vector(-35, 37.46815, 0), Vector(-35, 30.46815, 0)), False)
sketch8.addGeometry(Part.LineSegment(Vector(-35, 30.46815, 0), Vector(-41, 30.46815, 0)), False)
sketch8.addGeometry(Part.LineSegment(Vector(-41, 30.46815, 0), Vector(-41, 37.46815, 0)), False)
sketch8.addConstraint(Sketcher.Constraint("Coincident", 0, 2, 1, 1))
sketch8.addConstraint(Sketcher.Constraint("Coincident", 1, 2, 2, 1))
sketch8.addConstraint(Sketcher.Constraint("Coincident", 2, 2, 3, 1))
sketch8.addConstraint(Sketcher.Constraint("Coincident", 3, 2, 0, 1))
sketch8.addConstraint(Sketcher.Constraint("Coincident", 4, 2, 5, 1))
sketch8.addConstraint(Sketcher.Constraint("Coincident", 5, 2, 6, 1))
sketch8.addConstraint(Sketcher.Constraint("Coincident", 6, 2, 7, 1))
sketch8.addConstraint(Sketcher.Constraint("Coincident", 7, 2, 4, 1))
sketch8.addConstraint(Sketcher.Constraint("Horizontal", 0))
sketch8.addConstraint(Sketcher.Constraint("Vertical", 1))
sketch8.addConstraint(Sketcher.Constraint("Horizontal", 2))
sketch8.addConstraint(Sketcher.Constraint("Vertical", 3))
sketch8.addConstraint(Sketcher.Constraint("Horizontal", 4))
sketch8.addConstraint(Sketcher.Constraint("Vertical", 5))
sketch8.addConstraint(Sketcher.Constraint("Horizontal", 6))
sketch8.addConstraint(Sketcher.Constraint("Vertical", 7))
sketch8.addConstraint(Sketcher.Constraint("Vertical", 1, 2, 4, 2))
sketch8.addConstraint(Sketcher.Constraint("Vertical", 3, 2, 6, 2))
sketch8.addConstraint(Sketcher.Constraint("Equal", 3, 5))
sketch8.addConstraint(Sketcher.Constraint("DistanceX", 0, 1, 0, 2, 6.0))
sketch8.addConstraint(Sketcher.Constraint("DistanceY", 1, 2, 1, 1, 7.0))
sketch8.addConstraint(Sketcher.Constraint("DistanceX", 0, 2, -1, 1, 35.0))
sketch8.addConstraint(Sketcher.Constraint("DistanceY", 4, 2, 1, 2, 12.0637))
sketch8.addConstraint(Sketcher.Constraint("DistanceY", -1, 1, 0, 2, 56.53185))
pad5 = body.newObject("PartDesign::Pad", "Pad004")
pad5.Profile = sketch8
pad5.Length = 6

# Sketch on XZ plane
sketch9 = body.newObject("Sketcher::SketchObject", "Sketch008")
sketch9.AttachmentSupport = (doc.getObject("XZ_Plane"), [""])
sketch9.MapMode = "FlatFace"
sketch9.AttachmentOffset = App.Placement(Vector(0, 0, -6), App.Rotation())
sketch9.addGeometry(Part.LineSegment(Vector(-41, -30.46815, 0), Vector(-35, -30.46815, 0)), False)
sketch9.addGeometry(Part.LineSegment(Vector(-35, -30.46815, 0), Vector(-35, -37.46815, 0)), False)
sketch9.addGeometry(Part.LineSegment(Vector(-35, -37.46815, 0), Vector(-41, -37.46815, 0)), False)
sketch9.addGeometry(Part.LineSegment(Vector(-41, -37.46815, 0), Vector(-41, -30.46815, 0)), False)
sketch9.addGeometry(Part.LineSegment(Vector(-41, -49.53185, 0), Vector(-35, -49.53185, 0)), False)
sketch9.addGeometry(Part.LineSegment(Vector(-35, -49.53185, 0), Vector(-35, -56.53185, 0)), False)
sketch9.addGeometry(Part.LineSegment(Vector(-35, -56.53185, 0), Vector(-41, -56.53185, 0)), False)
sketch9.addGeometry(Part.LineSegment(Vector(-41, -56.53185, 0), Vector(-41, -49.53185, 0)), False)
sketch9.addConstraint(Sketcher.Constraint("Coincident", 0, 2, 1, 1))
sketch9.addConstraint(Sketcher.Constraint("Coincident", 1, 2, 2, 1))
sketch9.addConstraint(Sketcher.Constraint("Coincident", 2, 2, 3, 1))
sketch9.addConstraint(Sketcher.Constraint("Coincident", 3, 2, 0, 1))
sketch9.addConstraint(Sketcher.Constraint("Coincident", 4, 2, 5, 1))
sketch9.addConstraint(Sketcher.Constraint("Coincident", 5, 2, 6, 1))
sketch9.addConstraint(Sketcher.Constraint("Coincident", 6, 2, 7, 1))
sketch9.addConstraint(Sketcher.Constraint("Coincident", 7, 2, 4, 1))
sketch9.addConstraint(Sketcher.Constraint("Horizontal", 0))
sketch9.addConstraint(Sketcher.Constraint("Vertical", 1))
sketch9.addConstraint(Sketcher.Constraint("Horizontal", 2))
sketch9.addConstraint(Sketcher.Constraint("Vertical", 3))
sketch9.addConstraint(Sketcher.Constraint("Horizontal", 4))
sketch9.addConstraint(Sketcher.Constraint("Vertical", 5))
sketch9.addConstraint(Sketcher.Constraint("Horizontal", 6))
sketch9.addConstraint(Sketcher.Constraint("Vertical", 7))
sketch9.addConstraint(Sketcher.Constraint("Vertical", 1, 2, 4, 2))
sketch9.addConstraint(Sketcher.Constraint("Vertical", 3, 2, 6, 2))
sketch9.addConstraint(Sketcher.Constraint("Equal", 3, 5))
sketch9.addConstraint(Sketcher.Constraint("DistanceX", 0, 1, 0, 2, 6.0))
sketch9.addConstraint(Sketcher.Constraint("DistanceY", 1, 2, 1, 1, 7.0))
sketch9.addConstraint(Sketcher.Constraint("DistanceX", 0, 2, -1, 1, 35.0))
sketch9.addConstraint(Sketcher.Constraint("DistanceY", 4, 2, 1, 2, 12.0637))
sketch9.addConstraint(Sketcher.Constraint("DistanceY", 0, 2, -1, 1, 30.46815))
pad6 = body.newObject("PartDesign::Pad", "Pad005")
pad6.Profile = sketch9
pad6.Length = 6

# Sketch on XZ plane
sketch10 = body.newObject("Sketcher::SketchObject", "Sketch009")
sketch10.AttachmentSupport = (doc.getObject("XZ_Plane"), [""])
sketch10.MapMode = "FlatFace"
sketch10.AttachmentOffset = App.Placement(Vector(0, 0, -6), App.Rotation())
sketch10.addGeometry(Part.LineSegment(Vector(-41, 56.53185, 0), Vector(-35, 56.53185, 0)), False)
sketch10.addGeometry(Part.LineSegment(Vector(-35, 56.53185, 0), Vector(-35, 49.53185, 0)), False)
sketch10.addGeometry(Part.LineSegment(Vector(-35, 49.53185, 0), Vector(-41, 49.53185, 0)), False)
sketch10.addGeometry(Part.LineSegment(Vector(-41, 49.53185, 0), Vector(-41, 56.53185, 0)), False)
sketch10.addGeometry(Part.LineSegment(Vector(-41, 37.46815, 0), Vector(-35, 37.46815, 0)), False)
sketch10.addGeometry(Part.LineSegment(Vector(-35, 37.46815, 0), Vector(-35, 30.46815, 0)), False)
sketch10.addGeometry(Part.LineSegment(Vector(-35, 30.46815, 0), Vector(-41, 30.46815, 0)), False)
sketch10.addGeometry(Part.LineSegment(Vector(-41, 30.46815, 0), Vector(-41, 37.46815, 0)), False)
sketch10.addConstraint(Sketcher.Constraint("Coincident", 0, 2, 1, 1))
sketch10.addConstraint(Sketcher.Constraint("Coincident", 1, 2, 2, 1))
sketch10.addConstraint(Sketcher.Constraint("Coincident", 2, 2, 3, 1))
sketch10.addConstraint(Sketcher.Constraint("Coincident", 3, 2, 0, 1))
sketch10.addConstraint(Sketcher.Constraint("Coincident", 4, 2, 5, 1))
sketch10.addConstraint(Sketcher.Constraint("Coincident", 5, 2, 6, 1))
sketch10.addConstraint(Sketcher.Constraint("Coincident", 6, 2, 7, 1))
sketch10.addConstraint(Sketcher.Constraint("Coincident", 7, 2, 4, 1))
sketch10.addConstraint(Sketcher.Constraint("Horizontal", 0))
sketch10.addConstraint(Sketcher.Constraint("Vertical", 1))
sketch10.addConstraint(Sketcher.Constraint("Horizontal", 2))
sketch10.addConstraint(Sketcher.Constraint("Vertical", 3))
sketch10.addConstraint(Sketcher.Constraint("Horizontal", 4))
sketch10.addConstraint(Sketcher.Constraint("Vertical", 5))
sketch10.addConstraint(Sketcher.Constraint("Horizontal", 6))
sketch10.addConstraint(Sketcher.Constraint("Vertical", 7))
sketch10.addConstraint(Sketcher.Constraint("Vertical", 1, 2, 4, 2))
sketch10.addConstraint(Sketcher.Constraint("Vertical", 3, 2, 6, 2))
sketch10.addConstraint(Sketcher.Constraint("Equal", 3, 5))
sketch10.addConstraint(Sketcher.Constraint("DistanceX", 0, 1, 0, 2, 6.0))
sketch10.addConstraint(Sketcher.Constraint("DistanceY", 1, 2, 1, 1, 7.0))
sketch10.addConstraint(Sketcher.Constraint("DistanceX", 0, 2, -1, 1, 35.0))
sketch10.addConstraint(Sketcher.Constraint("DistanceY", 4, 2, 1, 2, 12.0637))
sketch10.addConstraint(Sketcher.Constraint("DistanceY", -1, 1, 0, 2, 56.53185))
pad7 = body.newObject("PartDesign::Pad", "Pad006")
pad7.Profile = sketch10
pad7.Length = 6

# Sketch on XZ plane
sketch11 = body.newObject("Sketcher::SketchObject", "Sketch010")
sketch11.AttachmentSupport = (doc.getObject("XZ_Plane"), [""])
sketch11.MapMode = "FlatFace"
sketch11.addGeometry(Part.LineSegment(Vector(-41, -56.53185, 0), Vector(-35, -56.53185, 0)), False)
sketch11.addGeometry(Part.LineSegment(Vector(-35, -56.53185, 0), Vector(-35, -49.53185, 0)), False)
sketch11.addGeometry(Part.LineSegment(Vector(-35, -49.53185, 0), Vector(-41, -49.53185, 0)), False)
sketch11.addGeometry(Part.LineSegment(Vector(-41, -49.53185, 0), Vector(-41, -56.53185, 0)), False)
sketch11.addGeometry(Part.LineSegment(Vector(-41, -37.46815, 0), Vector(-35, -37.46815, 0)), False)
sketch11.addGeometry(Part.LineSegment(Vector(-35, -37.46815, 0), Vector(-35, -30.46815, 0)), False)
sketch11.addGeometry(Part.LineSegment(Vector(-35, -30.46815, 0), Vector(-41, -30.46815, 0)), False)
sketch11.addGeometry(Part.LineSegment(Vector(-41, -30.46815, 0), Vector(-41, -37.46815, 0)), False)
sketch11.addConstraint(Sketcher.Constraint("Coincident", 0, 2, 1, 1))
sketch11.addConstraint(Sketcher.Constraint("Coincident", 1, 2, 2, 1))
sketch11.addConstraint(Sketcher.Constraint("Coincident", 2, 2, 3, 1))
sketch11.addConstraint(Sketcher.Constraint("Coincident", 3, 2, 0, 1))
sketch11.addConstraint(Sketcher.Constraint("Coincident", 4, 2, 5, 1))
sketch11.addConstraint(Sketcher.Constraint("Coincident", 5, 2, 6, 1))
sketch11.addConstraint(Sketcher.Constraint("Coincident", 6, 2, 7, 1))
sketch11.addConstraint(Sketcher.Constraint("Coincident", 7, 2, 4, 1))
sketch11.addConstraint(Sketcher.Constraint("Horizontal", 0))
sketch11.addConstraint(Sketcher.Constraint("Vertical", 1))
sketch11.addConstraint(Sketcher.Constraint("Horizontal", 2))
sketch11.addConstraint(Sketcher.Constraint("Vertical", 3))
sketch11.addConstraint(Sketcher.Constraint("Horizontal", 4))
sketch11.addConstraint(Sketcher.Constraint("Vertical", 5))
sketch11.addConstraint(Sketcher.Constraint("Horizontal", 6))
sketch11.addConstraint(Sketcher.Constraint("Vertical", 7))
sketch11.addConstraint(Sketcher.Constraint("Vertical", 1, 2, 4, 2))
sketch11.addConstraint(Sketcher.Constraint("Vertical", 3, 2, 6, 2))
sketch11.addConstraint(Sketcher.Constraint("Equal", 3, 5))
sketch11.addConstraint(Sketcher.Constraint("DistanceX", 0, 1, 0, 2, 6.0))
sketch11.addConstraint(Sketcher.Constraint("DistanceY", 1, 1, 1, 2, 7.0))
sketch11.addConstraint(Sketcher.Constraint("DistanceX", 0, 2, -1, 1, 35.0))
sketch11.addConstraint(Sketcher.Constraint("DistanceY", 1, 2, 4, 2, 12.0637))
sketch11.addConstraint(Sketcher.Constraint("DistanceY", 0, 2, -1, 1, 56.53185))
pad8 = body.newObject("PartDesign::Pad", "Pad007")
pad8.Profile = sketch11
pad8.Length = 6
pad8.Reversed = True

# Sketch on XZ plane
sketch12 = body.newObject("Sketcher::SketchObject", "Sketch011")
sketch12.AttachmentSupport = (doc.getObject("XZ_Plane"), [""])
sketch12.MapMode = "FlatFace"
sketch12.addGeometry(Part.LineSegment(Vector(-41, 30.46815, 0), Vector(-35, 30.46815, 0)), False)
sketch12.addGeometry(Part.LineSegment(Vector(-35, 30.46815, 0), Vector(-35, 37.46815, 0)), False)
sketch12.addGeometry(Part.LineSegment(Vector(-35, 37.46815, 0), Vector(-41, 37.46815, 0)), False)
sketch12.addGeometry(Part.LineSegment(Vector(-41, 37.46815, 0), Vector(-41, 30.46815, 0)), False)
sketch12.addGeometry(Part.LineSegment(Vector(-41, 49.53185, 0), Vector(-35, 49.53185, 0)), False)
sketch12.addGeometry(Part.LineSegment(Vector(-35, 49.53185, 0), Vector(-35, 56.53185, 0)), False)
sketch12.addGeometry(Part.LineSegment(Vector(-35, 56.53185, 0), Vector(-41, 56.53185, 0)), False)
sketch12.addGeometry(Part.LineSegment(Vector(-41, 56.53185, 0), Vector(-41, 49.53185, 0)), False)
sketch12.addConstraint(Sketcher.Constraint("Coincident", 0, 2, 1, 1))
sketch12.addConstraint(Sketcher.Constraint("Coincident", 1, 2, 2, 1))
sketch12.addConstraint(Sketcher.Constraint("Coincident", 2, 2, 3, 1))
sketch12.addConstraint(Sketcher.Constraint("Coincident", 3, 2, 0, 1))
sketch12.addConstraint(Sketcher.Constraint("Coincident", 4, 2, 5, 1))
sketch12.addConstraint(Sketcher.Constraint("Coincident", 5, 2, 6, 1))
sketch12.addConstraint(Sketcher.Constraint("Coincident", 6, 2, 7, 1))
sketch12.addConstraint(Sketcher.Constraint("Coincident", 7, 2, 4, 1))
sketch12.addConstraint(Sketcher.Constraint("Horizontal", 0))
sketch12.addConstraint(Sketcher.Constraint("Vertical", 1))
sketch12.addConstraint(Sketcher.Constraint("Horizontal", 2))
sketch12.addConstraint(Sketcher.Constraint("Vertical", 3))
sketch12.addConstraint(Sketcher.Constraint("Horizontal", 4))
sketch12.addConstraint(Sketcher.Constraint("Vertical", 5))
sketch12.addConstraint(Sketcher.Constraint("Horizontal", 6))
sketch12.addConstraint(Sketcher.Constraint("Vertical", 7))
sketch12.addConstraint(Sketcher.Constraint("Vertical", 1, 2, 4, 2))
sketch12.addConstraint(Sketcher.Constraint("Vertical", 3, 2, 6, 2))
sketch12.addConstraint(Sketcher.Constraint("Equal", 3, 5))
sketch12.addConstraint(Sketcher.Constraint("DistanceX", 0, 1, 0, 2, 6.0))
sketch12.addConstraint(Sketcher.Constraint("DistanceY", 1, 1, 1, 2, 7.0))
sketch12.addConstraint(Sketcher.Constraint("DistanceX", 0, 2, -1, 1, 35.0))
sketch12.addConstraint(Sketcher.Constraint("DistanceY", 1, 2, 4, 2, 12.0637))
sketch12.addConstraint(Sketcher.Constraint("DistanceY", -1, 1, 0, 2, 30.46815))
pad9 = body.newObject("PartDesign::Pad", "Pad008")
pad9.Profile = sketch12
pad9.Length = 6
pad9.Reversed = True

doc.recompute()
